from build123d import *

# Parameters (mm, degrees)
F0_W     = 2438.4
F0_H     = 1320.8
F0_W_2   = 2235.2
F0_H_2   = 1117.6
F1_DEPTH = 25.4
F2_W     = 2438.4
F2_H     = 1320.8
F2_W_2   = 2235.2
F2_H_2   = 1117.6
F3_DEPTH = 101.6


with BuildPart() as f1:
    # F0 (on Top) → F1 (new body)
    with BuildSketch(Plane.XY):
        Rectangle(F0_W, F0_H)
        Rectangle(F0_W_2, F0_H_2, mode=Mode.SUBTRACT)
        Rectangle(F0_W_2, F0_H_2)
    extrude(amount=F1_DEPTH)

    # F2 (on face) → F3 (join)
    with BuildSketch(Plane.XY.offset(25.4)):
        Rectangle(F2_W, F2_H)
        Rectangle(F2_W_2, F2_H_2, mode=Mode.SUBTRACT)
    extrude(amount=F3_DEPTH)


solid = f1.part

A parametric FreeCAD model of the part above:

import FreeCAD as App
import Part
import Sketcher

V = App.Vector
Q = App.Units.Quantity


def add_polygon(sketch, points):
    """Adds a closed chain of lines whose ends are joined by coincident constraints."""
    first, n = sketch.GeometryCount, len(points)
    for a, b in zip(points, points[1:] + points[:1]):
        sketch.addGeometry(Part.LineSegment(App.Vector(*a, 0), App.Vector(*b, 0)), False)
    for i in range(n):
        sketch.addConstraint(Sketcher.Constraint("Coincident", first + i, 2, first + (i + 1) % n, 1))

doc = App.newDocument("Part")
params = doc.addObject("Spreadsheet::Sheet", "Params")
for row, (alias, value) in enumerate([
    ("sketch1_width", "96 in"),
    ("sketch1_height", "52 in"),
    ("pad1_length", "1 in"),
    ("sketch2_width", "96 in"),
    ("sketch2_width2", "88 in"),
    ("sketch2_height", "52 in"),
    ("sketch2_height2", "44 in"),
    ("pad2_length", "4 in"),
], start=1):
    params.set(f"A{row}", alias)
    params.set(f"B{row}", "=" + value)
    params.setAlias(f"B{row}", alias)

body = doc.addObject("PartDesign::Body", "Body")

# Sketch on XY plane
sketch1 = body.newObject("Sketcher::SketchObject", "Sketch")
sketch1.AttachmentSupport = (doc.getObject("XY_Plane"), [""])
sketch1.MapMode = "FlatFace"
add_polygon(sketch1, [(-1219, 660), (-1219, -660), (1219, -660), (1219, 660)])  # lines 0-3
sketch1.addConstraint([
    Sketcher.Constraint("Vertical", 0),
    Sketcher.Constraint("Horizontal", 1),
    Sketcher.Constraint("Vertical", 2),
    Sketcher.Constraint("Horizontal", 3),
    Sketcher.Constraint("Symmetric", 0, 2, 2, 2, -1, 1),
    Sketcher.Constraint("DistanceX", 1, 1, 1, 2, Q("96 in")),
    Sketcher.Constraint("DistanceY", 0, 2, 0, 1, Q("52 in")),
])
sketch1.setExpression("Constraints[9]", "Params.sketch1_width")
sketch1.setExpression("Constraints[10]", "Params.sketch1_height")
pad1 = body.newObject("PartDesign::Pad", "Pad")
pad1.Profile = sketch1
pad1.setExpression("Length", "Params.pad1_length")

# Sketch on XY plane
sketch2 = body.newObject("Sketcher::SketchObject", "Sketch001")
sketch2.AttachmentSupport = (doc.getObject("XY_Plane"), [""])
sketch2.MapMode = "FlatFace"
sketch2.AttachmentOffset = App.Placement(V(0, 0, 1 * 25.4), App.Rotation())
add_polygon(sketch2, [(-1219, 660), (-1219, -660), (1219, -660), (1219, 660)])  # lines 0-3
add_polygon(sketch2, [(1118, -559), (-1118, -559), (-1118, 559), (1118, 559)])  # lines 4-7
sketch2.addConstraint([
    Sketcher.Constraint("Vertical", 0),
    Sketcher.Constraint("Horizontal", 1),
    Sketcher.Constraint("Vertical", 2),
    Sketcher.Constraint("Horizontal", 3),
    Sketcher.Constraint("Horizontal", 4),
    Sketcher.Constraint("Vertical", 5),
    Sketcher.Constraint("Horizontal", 6),
    Sketcher.Constraint("Vertical", 7),
    Sketcher.Constraint("Symmetric", 0, 2, 2, 2, -1, 1),
    Sketcher.Constraint("Symmetric", 4, 2, 6, 2, -1, 1),
    Sketcher.Constraint("DistanceX", 1, 1, 1, 2, Q("96 in")),
    Sketcher.Constraint("DistanceX", 4, 2, 4, 1, Q("88 in")),
    Sketcher.Constraint("DistanceY", 0, 2, 0, 1, Q("52 in")),
    Sketcher.Constraint("DistanceY", 5, 1, 5, 2, Q("44 in")),
])
sketch2.setExpression("Constraints[18]", "Params.sketch2_width")
sketch2.setExpression("Constraints[19]", "Params.sketch2_width2")
sketch2.setExpression("Constraints[20]", "Params.sketch2_height")
sketch2.setExpression("Constraints[21]", "Params.sketch2_height2")
pad2 = body.newObject("PartDesign::Pad", "Pad001")
pad2.Profile = sketch2
pad2.setExpression("Length", "Params.pad2_length")

doc.recompute()
